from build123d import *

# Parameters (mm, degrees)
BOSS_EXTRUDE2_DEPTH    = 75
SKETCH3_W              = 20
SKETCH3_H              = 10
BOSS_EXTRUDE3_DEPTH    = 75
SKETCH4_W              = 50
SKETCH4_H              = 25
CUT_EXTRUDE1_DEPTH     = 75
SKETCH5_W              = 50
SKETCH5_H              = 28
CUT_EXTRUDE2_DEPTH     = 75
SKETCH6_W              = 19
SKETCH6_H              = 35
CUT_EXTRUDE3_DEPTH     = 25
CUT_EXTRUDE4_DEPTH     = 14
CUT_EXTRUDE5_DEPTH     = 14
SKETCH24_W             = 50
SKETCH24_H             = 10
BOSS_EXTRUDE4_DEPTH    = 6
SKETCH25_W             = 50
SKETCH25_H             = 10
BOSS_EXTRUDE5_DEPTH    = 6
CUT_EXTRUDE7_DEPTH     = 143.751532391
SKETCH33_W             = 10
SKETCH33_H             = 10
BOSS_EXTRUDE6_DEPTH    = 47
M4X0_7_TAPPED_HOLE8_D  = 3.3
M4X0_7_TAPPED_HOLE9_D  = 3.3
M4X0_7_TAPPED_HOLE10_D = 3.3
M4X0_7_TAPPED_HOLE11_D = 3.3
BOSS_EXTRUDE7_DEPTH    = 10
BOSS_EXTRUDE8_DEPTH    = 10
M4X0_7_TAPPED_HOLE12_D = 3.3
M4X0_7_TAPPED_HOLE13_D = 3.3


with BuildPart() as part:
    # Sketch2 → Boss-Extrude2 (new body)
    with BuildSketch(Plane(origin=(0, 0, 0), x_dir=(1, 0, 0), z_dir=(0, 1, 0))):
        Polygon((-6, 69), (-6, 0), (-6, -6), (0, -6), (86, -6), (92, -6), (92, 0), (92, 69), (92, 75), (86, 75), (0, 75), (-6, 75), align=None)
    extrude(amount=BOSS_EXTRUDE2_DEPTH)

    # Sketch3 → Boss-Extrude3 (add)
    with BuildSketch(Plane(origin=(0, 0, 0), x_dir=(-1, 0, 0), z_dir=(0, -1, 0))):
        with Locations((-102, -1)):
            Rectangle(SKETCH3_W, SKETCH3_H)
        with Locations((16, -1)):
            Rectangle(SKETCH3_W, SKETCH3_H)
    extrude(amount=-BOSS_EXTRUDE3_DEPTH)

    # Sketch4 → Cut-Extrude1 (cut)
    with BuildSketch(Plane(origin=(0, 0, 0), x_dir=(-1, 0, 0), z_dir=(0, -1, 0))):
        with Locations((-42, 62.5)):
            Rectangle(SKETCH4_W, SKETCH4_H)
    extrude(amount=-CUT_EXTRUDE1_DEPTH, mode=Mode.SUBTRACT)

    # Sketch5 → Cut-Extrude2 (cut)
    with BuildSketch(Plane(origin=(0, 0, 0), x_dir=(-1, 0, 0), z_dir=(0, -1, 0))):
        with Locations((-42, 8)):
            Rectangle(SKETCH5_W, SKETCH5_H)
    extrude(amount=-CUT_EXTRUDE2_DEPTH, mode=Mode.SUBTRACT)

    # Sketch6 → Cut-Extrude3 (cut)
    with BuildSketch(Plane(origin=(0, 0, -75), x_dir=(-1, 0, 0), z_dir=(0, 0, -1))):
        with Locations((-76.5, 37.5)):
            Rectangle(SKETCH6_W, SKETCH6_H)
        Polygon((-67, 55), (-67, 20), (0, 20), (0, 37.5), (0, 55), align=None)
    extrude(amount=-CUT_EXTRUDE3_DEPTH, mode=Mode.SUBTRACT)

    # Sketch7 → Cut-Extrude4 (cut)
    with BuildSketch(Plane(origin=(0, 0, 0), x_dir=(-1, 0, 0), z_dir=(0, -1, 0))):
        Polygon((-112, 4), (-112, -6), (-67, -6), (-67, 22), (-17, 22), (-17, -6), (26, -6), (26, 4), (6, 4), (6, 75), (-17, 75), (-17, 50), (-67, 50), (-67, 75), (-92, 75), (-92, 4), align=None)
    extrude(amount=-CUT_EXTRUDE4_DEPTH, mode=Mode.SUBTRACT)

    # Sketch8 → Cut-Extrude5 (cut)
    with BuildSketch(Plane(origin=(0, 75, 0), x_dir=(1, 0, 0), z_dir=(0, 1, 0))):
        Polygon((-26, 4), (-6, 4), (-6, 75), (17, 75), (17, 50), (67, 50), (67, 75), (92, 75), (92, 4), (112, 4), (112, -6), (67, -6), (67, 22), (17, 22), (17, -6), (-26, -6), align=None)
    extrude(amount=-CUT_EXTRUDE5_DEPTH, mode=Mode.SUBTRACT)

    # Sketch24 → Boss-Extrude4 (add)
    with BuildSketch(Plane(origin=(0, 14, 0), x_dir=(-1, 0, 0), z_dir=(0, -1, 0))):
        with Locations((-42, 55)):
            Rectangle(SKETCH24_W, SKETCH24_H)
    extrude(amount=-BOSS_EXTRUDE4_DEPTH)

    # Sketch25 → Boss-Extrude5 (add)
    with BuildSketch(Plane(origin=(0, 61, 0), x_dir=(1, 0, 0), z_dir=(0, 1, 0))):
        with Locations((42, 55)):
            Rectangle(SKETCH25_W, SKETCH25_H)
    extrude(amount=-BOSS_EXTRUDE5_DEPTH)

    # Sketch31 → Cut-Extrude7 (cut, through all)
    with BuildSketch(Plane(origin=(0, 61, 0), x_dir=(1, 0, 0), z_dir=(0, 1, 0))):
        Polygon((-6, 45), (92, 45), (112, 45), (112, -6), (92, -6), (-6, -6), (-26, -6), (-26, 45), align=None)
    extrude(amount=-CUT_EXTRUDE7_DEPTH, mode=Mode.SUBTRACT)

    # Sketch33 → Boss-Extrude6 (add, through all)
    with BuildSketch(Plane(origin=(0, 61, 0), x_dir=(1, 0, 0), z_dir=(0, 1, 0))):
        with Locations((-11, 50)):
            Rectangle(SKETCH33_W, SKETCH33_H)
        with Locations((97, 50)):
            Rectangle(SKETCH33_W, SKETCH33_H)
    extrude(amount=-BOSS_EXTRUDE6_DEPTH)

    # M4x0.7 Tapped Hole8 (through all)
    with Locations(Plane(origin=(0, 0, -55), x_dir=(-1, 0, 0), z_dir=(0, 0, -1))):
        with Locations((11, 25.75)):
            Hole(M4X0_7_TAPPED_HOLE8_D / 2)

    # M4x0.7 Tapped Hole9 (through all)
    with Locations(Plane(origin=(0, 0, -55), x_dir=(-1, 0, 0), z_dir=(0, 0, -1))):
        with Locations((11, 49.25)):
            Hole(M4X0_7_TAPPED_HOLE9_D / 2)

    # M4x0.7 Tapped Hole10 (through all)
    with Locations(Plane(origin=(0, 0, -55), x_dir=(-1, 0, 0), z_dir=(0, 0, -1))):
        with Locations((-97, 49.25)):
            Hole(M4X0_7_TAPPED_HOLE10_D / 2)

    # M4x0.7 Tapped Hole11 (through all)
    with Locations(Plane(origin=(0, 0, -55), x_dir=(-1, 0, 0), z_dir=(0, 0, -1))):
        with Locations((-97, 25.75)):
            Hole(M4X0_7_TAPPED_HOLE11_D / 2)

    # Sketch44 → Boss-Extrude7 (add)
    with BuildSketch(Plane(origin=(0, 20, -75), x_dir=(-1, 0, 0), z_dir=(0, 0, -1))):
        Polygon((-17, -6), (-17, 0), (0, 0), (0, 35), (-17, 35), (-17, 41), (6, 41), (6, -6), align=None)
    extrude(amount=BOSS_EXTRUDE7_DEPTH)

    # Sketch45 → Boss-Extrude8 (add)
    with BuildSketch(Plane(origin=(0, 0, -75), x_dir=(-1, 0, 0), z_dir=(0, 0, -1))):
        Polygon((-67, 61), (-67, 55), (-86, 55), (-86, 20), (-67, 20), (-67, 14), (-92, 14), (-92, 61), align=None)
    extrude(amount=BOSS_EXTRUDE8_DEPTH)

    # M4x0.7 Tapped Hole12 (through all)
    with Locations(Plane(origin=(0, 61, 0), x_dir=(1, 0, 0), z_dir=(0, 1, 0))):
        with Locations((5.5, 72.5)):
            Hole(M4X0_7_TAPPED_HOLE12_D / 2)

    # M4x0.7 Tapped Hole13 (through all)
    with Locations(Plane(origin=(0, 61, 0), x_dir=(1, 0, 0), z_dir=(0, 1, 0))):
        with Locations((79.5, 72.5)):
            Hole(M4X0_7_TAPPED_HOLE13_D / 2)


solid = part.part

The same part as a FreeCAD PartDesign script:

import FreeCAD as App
import Part
import Sketcher

V = App.Vector
Q = App.Units.Quantity


def add_polygon(sketch, points):
    """Adds a closed chain of lines whose ends are joined by coincident constraints."""
    first, n = sketch.GeometryCount, len(points)
    for a, b in zip(points, points[1:] + points[:1]):
        sketch.addGeometry(Part.LineSegment(App.Vector(*a, 0), App.Vector(*b, 0)), False)
    for i in range(n):
        sketch.addConstraint(Sketcher.Constraint("Coincident", first + i, 2, first + (i + 1) % n, 1))

doc = App.newDocument("Part")
body = doc.addObject("PartDesign::Body", "Body")

sketch1 = body.newObject("Sketcher::SketchObject", "Sketch")
sketch1.AttachmentSupport = (doc.getObject("XZ_Plane"), [""])
sketch1.MapMode = "FlatFace"
add_polygon(sketch1, [(-6, 6), (92, 6), (92, -75), (-6, -75)])
sketch1.addConstraint([
    Sketcher.Constraint("Horizontal", 0),
    Sketcher.Constraint("Vertical", 1),
    Sketcher.Constraint("Horizontal", 2),
    Sketcher.Constraint("Vertical", 3),
    Sketcher.Constraint("DistanceX", 0, 1, 0, 2, Q("98 mm")),
    Sketcher.Constraint("DistanceY", 1, 2, 1, 1, Q("81 mm")),
    Sketcher.Constraint("DistanceX", -1, 1, 0, 2, Q("92 mm")),
    Sketcher.Constraint("DistanceY", -1, 1, 0, 2, Q("6 mm")),
])
pad1 = body.newObject("PartDesign::Pad", "Pad")
pad1.Profile = sketch1
pad1.Length = 75
pad1.Reversed = True

sketch2 = body.newObject("Sketcher::SketchObject", "Sketch001")
sketch2.AttachmentSupport = (doc.getObject("XZ_Plane"), [""])
sketch2.MapMode = "FlatFace"
add_polygon(sketch2, [(112, -4), (112, 6), (92, 6), (92, -4)])
add_polygon(sketch2, [(-6, -4), (-6, 6), (-26, 6), (-26, -4)])
sketch2.addConstraint([
    Sketcher.Constraint("Vertical", 0),
    Sketcher.Constraint("Horizontal", 1),
    Sketcher.Constraint("Vertical", 2),
    Sketcher.Constraint("Horizontal", 3),
    Sketcher.Constraint("Vertical", 4),
    Sketcher.Constraint("Horizontal", 5),
    Sketcher.Constraint("Vertical", 6),
    Sketcher.Constraint("Horizontal", 7),
    Sketcher.Constraint("Horizontal", 1, 2, 4, 2),
    Sketcher.Constraint("Horizontal", 3, 2, 6, 2),
    Sketcher.Constraint("Equal", 3, 5),
    Sketcher.Constraint("DistanceX", 1, 2, 1, 1, Q("20 mm")),
    Sketcher.Constraint("DistanceY", 0, 1, 0, 2, Q("10 mm")),
    Sketcher.Constraint("DistanceX", -1, 1, 0, 2, Q("112 mm")),
    Sketcher.Constraint("DistanceY", -1, 1, 0, 2, Q("6 mm")),
    Sketcher.Constraint("DistanceX", 4, 2, -1, 1, Q("6 mm")),
])
pad2 = body.newObject("PartDesign::Pad", "Pad001")
pad2.Profile = sketch2
pad2.Length = 75
pad2.Reversed = True

sketch3 = body.newObject("Sketcher::SketchObject", "Sketch002")
sketch3.AttachmentSupport = (doc.getObject("XZ_Plane"), [""])
sketch3.MapMode = "FlatFace"
add_polygon(sketch3, [(67, -75), (67, -50), (17, -50), (17, -75)])
sketch3.addConstraint([
    Sketcher.Constraint("Vertical", 0),
    Sketcher.Constraint("Horizontal", 1),
    Sketcher.Constraint("Vertical", 2),
    Sketcher.Constraint("Horizontal", 3),
    Sketcher.Constraint("DistanceX", 1, 2, 1, 1, Q("50 mm")),
    Sketcher.Constraint("DistanceY", 0, 1, 0, 2, Q("25 mm")),
    Sketcher.Constraint("DistanceX", -1, 1, 0, 2, Q("67 mm")),
    Sketcher.Constraint("DistanceY", 0, 2, -1, 1, Q("50 mm")),
])
pocket1 = body.newObject("PartDesign::Pocket", "Pocket")
pocket1.Profile = sketch3
pocket1.Length = 75

sketch4 = body.newObject("Sketcher::SketchObject", "Sketch003")
sketch4.AttachmentSupport = (doc.getObject("XZ_Plane"), [""])
sketch4.MapMode = "FlatFace"
add_polygon(sketch4, [(67, -22), (67, 6), (17, 6), (17, -22)])
sketch4.addConstraint([
    Sketcher.Constraint("Vertical", 0),
    Sketcher.Constraint("Horizontal", 1),
    Sketcher.Constraint("Vertical", 2),
    Sketcher.Constraint("Horizontal", 3),
    Sketcher.Constraint("DistanceX", 1, 2, 1, 1, Q("50 mm")),
    Sketcher.Constraint("DistanceY", 0, 1, 0, 2, Q("28 mm")),
    Sketcher.Constraint("DistanceX", -1, 1, 0, 2, Q("67 mm")),
    Sketcher.Constraint("DistanceY", -1, 1, 0, 2, Q("6 mm")),
])
pocket2 = body.newObject("PartDesign::Pocket", "Pocket001")
pocket2.Profile = sketch4
pocket2.Length = 75

sketch5 = body.newObject("Sketcher::SketchObject", "Sketch004")
sketch5.AttachmentSupport = (doc.getObject("XY_Plane"), [""])
sketch5.MapMode = "FlatFace"
sketch5.AttachmentOffset = App.Placement(V(0, 0, -75), App.Rotation())
add_polygon(sketch5, [(86, 55), (86, 20), (0, 20), (0, 55)])
sketch5.addConstraint([
    Sketcher.Constraint("Vertical", 0),
    Sketcher.Constraint("Horizontal", 1),
    Sketcher.Constraint("Vertical", 2),
    Sketcher.Constraint("Horizontal", 3),
    Sketcher.Constraint("PointOnObject", 1, 2, -2),
    Sketcher.Constraint("DistanceX", 1, 2, 1, 1, Q("86 mm")),
    Sketcher.Constraint("DistanceY", 0, 2, 0, 1, Q("35 mm")),
    Sketcher.Constraint("DistanceY", -1, 1, 0, 2, Q("20 mm")),
])
pocket3 = body.newObject("PartDesign::Pocket", "Pocket002")
pocket3.Profile = sketch5
pocket3.Length = 25
pocket3.Reversed = True

sketch6 = body.newObject("Sketcher::SketchObject", "Sketch005")
sketch6.AttachmentSupport = (doc.getObject("XZ_Plane"), [""])
sketch6.MapMode = "FlatFace"
add_polygon(sketch6, [(112, -4), (112, 6), (67, 6), (67, -22), (17, -22), (17, 6), (-26, 6), (-26, -4), (-6, -4), (-6, -75), (17, -75), (17, -50), (67, -50), (67, -75), (92, -75), (92, -4)])
sketch6.addConstraint([
    Sketcher.Constraint("Vertical", 0),
    Sketcher.Constraint("Horizontal", 1),
    Sketcher.Constraint("Vertical", 2),
    Sketcher.Constraint("Horizontal", 3),
    Sketcher.Constraint("Vertical", 4),
    Sketcher.Constraint("Horizontal", 5),
    Sketcher.Constraint("Vertical", 6),
    Sketcher.Constraint("Horizontal", 7),
    Sketcher.Constraint("Vertical", 8),
    Sketcher.Constraint("Horizontal", 9),
    Sketcher.Constraint("Vertical", 10),
    Sketcher.Constraint("Horizontal", 11),
    Sketcher.Constraint("Vertical", 12),
    Sketcher.Constraint("Horizontal", 13),
    Sketcher.Constraint("Vertical", 14),
    Sketcher.Constraint("Horizontal", 15),
    Sketcher.Constraint("Horizontal", 1, 2, 4, 2),
    Sketcher.Constraint("Horizontal", 9, 2, 12, 2),
    Sketcher.Constraint("Horizontal", 7, 2, 14, 2),
    Sketcher.Constraint("Vertical", 4, 2, 9, 2),
    Sketcher.Constraint("Vertical", 2, 2, 11, 2),
    Sketcher.Constraint("Equal", 7, 15),
    Sketcher.Constraint("Equal", 13, 10),
    Sketcher.Constraint("DistanceX", 1, 2, 1, 1, Q("45 mm")),
    Sketcher.Constraint("DistanceX", 3, 2, 3, 1, Q("50 mm")),
    Sketcher.Constraint("DistanceX", 5, 2, 5, 1, Q("43 mm")),
    Sketcher.Constraint("DistanceX", 7, 1, 7, 2, Q("20 mm")),
    Sketcher.Constraint("DistanceY", 0, 1, 0, 2, Q("10 mm")),
    Sketcher.Constraint("DistanceY", 2, 2, 2, 1, Q("28 mm")),
    Sketcher.Constraint("DistanceY", 8, 2, 8, 1, Q("71 mm")),
    Sketcher.Constraint("DistanceX", -1, 1, 0, 2, Q("112 mm")),
    Sketcher.Constraint("DistanceY", -1, 1, 0, 2, Q("6 mm")),
])
pocket4 = body.newObject("PartDesign::Pocket", "Pocket003")
pocket4.Profile = sketch6
pocket4.Length = 14

sketch7 = body.newObject("Sketcher::SketchObject", "Sketch006")
sketch7.AttachmentSupport = (doc.getObject("XZ_Plane"), [""])
sketch7.MapMode = "FlatFace"
sketch7.AttachmentOffset = App.Placement(V(0, 0, -75), App.Rotation())
add_polygon(sketch7, [(-6, -4), (-26, -4), (-26, 6), (17, 6), (17, -22), (67, -22), (67, 6), (112, 6), (112, -4), (92, -4), (92, -75), (67, -75), (67, -50), (17, -50), (17, -75), (-6, -75)])
sketch7.addConstraint([
    Sketcher.Constraint("Horizontal", 0),
    Sketcher.Constraint("Vertical", 1),
    Sketcher.Constraint("Horizontal", 2),
    Sketcher.Constraint("Vertical", 3),
    Sketcher.Constraint("Horizontal", 4),
    Sketcher.Constraint("Vertical", 5),
    Sketcher.Constraint("Horizontal", 6),
    Sketcher.Constraint("Vertical", 7),
    Sketcher.Constraint("Horizontal", 8),
    Sketcher.Constraint("Vertical", 9),
    Sketcher.Constraint("Horizontal", 10),
    Sketcher.Constraint("Vertical", 11),
    Sketcher.Constraint("Horizontal", 12),
    Sketcher.Constraint("Vertical", 13),
    Sketcher.Constraint("Horizontal", 14),
    Sketcher.Constraint("Vertical", 15),
    Sketcher.Constraint("Horizontal", 2, 2, 5, 2),
    Sketcher.Constraint("Horizontal", 0, 2, 7, 2),
    Sketcher.Constraint("Horizontal", 10, 2, 13, 2),
    Sketcher.Constraint("Vertical", 5, 2, 10, 2),
    Sketcher.Constraint("Vertical", 3, 2, 12, 2),
    Sketcher.Constraint("Equal", 0, 8),
    Sketcher.Constraint("Equal", 10, 11),
    Sketcher.Constraint("DistanceX", 0, 2, 0, 1, Q("20 mm")),
    Sketcher.Constraint("DistanceX", 2, 1, 2, 2, Q("43 mm")),
    Sketcher.Constraint("DistanceX", 4, 1, 4, 2, Q("50 mm")),
    Sketcher.Constraint("DistanceX", 6, 1, 6, 2, Q("45 mm")),
    Sketcher.Constraint("DistanceY", 1, 1, 1, 2, Q("10 mm")),
    Sketcher.Constraint("DistanceY", 3, 2, 3, 1, Q("28 mm")),
    Sketcher.Constraint("DistanceY", 9, 2, 9, 1, Q("71 mm")),
    Sketcher.Constraint("DistanceX", 0, 2, -1, 1, Q("26 mm")),
    Sketcher.Constraint("DistanceY", 0, 2, -1, 1, Q("4 mm")),
])
pocket5 = body.newObject("PartDesign::Pocket", "Pocket004")
pocket5.Profile = sketch7
pocket5.Length = 14
pocket5.Reversed = True

sketch8 = body.newObject("Sketcher::SketchObject", "Sketch007")
sketch8.AttachmentSupport = (doc.getObject("XZ_Plane"), [""])
sketch8.MapMode = "FlatFace"
sketch8.AttachmentOffset = App.Placement(V(0, 0, -14), App.Rotation())
add_polygon(sketch8, [(67, -60), (67, -50), (17, -50), (17, -60)])
sketch8.addConstraint([
    Sketcher.Constraint("Vertical", 0),
    Sketcher.Constraint("Horizontal", 1),
    Sketcher.Constraint("Vertical", 2),
    Sketcher.Constraint("Horizontal", 3),
    Sketcher.Constraint("DistanceX", 1, 2, 1, 1, Q("50 mm")),
    Sketcher.Constraint("DistanceY", 0, 1, 0, 2, Q("10 mm")),
    Sketcher.Constraint("DistanceX", -1, 1, 0, 2, Q("67 mm")),
    Sketcher.Constraint("DistanceY", 0, 2, -1, 1, Q("50 mm")),
])
pad3 = body.newObject("PartDesign::Pad", "Pad002")
pad3.Profile = sketch8
pad3.Length = 6
pad3.Reversed = True

sketch9 = body.newObject("Sketcher::SketchObject", "Sketch008")
sketch9.AttachmentSupport = (doc.getObject("XZ_Plane"), [""])
sketch9.MapMode = "FlatFace"
sketch9.AttachmentOffset = App.Placement(V(0, 0, -61), App.Rotation())
add_polygon(sketch9, [(17, -60), (17, -50), (67, -50), (67, -60)])
sketch9.addConstraint([
    Sketcher.Constraint("Vertical", 0),
    Sketcher.Constraint("Horizontal", 1),
    Sketcher.Constraint("Vertical", 2),
    Sketcher.Constraint("Horizontal", 3),
    Sketcher.Constraint("DistanceX", 1, 1, 1, 2, Q("50 mm")),
    Sketcher.Constraint("DistanceY", 0, 1, 0, 2, Q("10 mm")),
    Sketcher.Constraint("DistanceX", -1, 1, 0, 2, Q("17 mm")),
    Sketcher.Constraint("DistanceY", 0, 2, -1, 1, Q("50 mm")),
])
pad4 = body.newObject("PartDesign::Pad", "Pad003")
pad4.Profile = sketch9
pad4.Length = 6

sketch10 = body.newObject("Sketcher::SketchObject", "Sketch009")
sketch10.AttachmentSupport = (doc.getObject("XZ_Plane"), [""])
sketch10.MapMode = "FlatFace"
sketch10.AttachmentOffset = App.Placement(V(0, 0, -61), App.Rotation())
add_polygon(sketch10, [(112, -45), (-26, -45), (-26, 6), (112, 6)])
sketch10.addConstraint([
    Sketcher.Constraint("Horizontal", 0),
    Sketcher.Constraint("Vertical", 1),
    Sketcher.Constraint("Horizontal", 2),
    Sketcher.Constraint("Vertical", 3),
    Sketcher.Constraint("DistanceX", 0, 2, 0, 1, Q("138 mm")),
    Sketcher.Constraint("DistanceY", 1, 1, 1, 2, Q("51 mm")),
    Sketcher.Constraint("DistanceX", 0, 2, -1, 1, Q("26 mm")),
    Sketcher.Constraint("DistanceY", 0, 2, -1, 1, Q("45 mm")),
])
pocket6 = body.newObject("PartDesign::Pocket", "Pocket005")
pocket6.Profile = sketch10
pocket6.Type = "ThroughAll"
pocket6.Reversed = True

sketch11 = body.newObject("Sketcher::SketchObject", "Sketch010")
sketch11.AttachmentSupport = (doc.getObject("XZ_Plane"), [""])
sketch11.MapMode = "FlatFace"
sketch11.AttachmentOffset = App.Placement(V(0, 0, -61), App.Rotation())
add_polygon(sketch11, [(-16, -55), (-16, -45), (-6, -45), (-6, -55)])
add_polygon(sketch11, [(92, -55), (92, -45), (102, -45), (102, -55)])
sketch11.addConstraint([
    Sketcher.Constraint("Vertical", 0),
    Sketcher.Constraint("Horizontal", 1),
    Sketcher.Constraint("Vertical", 2),
    Sketcher.Constraint("Horizontal", 3),
    Sketcher.Constraint("Vertical", 4),
    Sketcher.Constraint("Horizontal", 5),
    Sketcher.Constraint("Vertical", 6),
    Sketcher.Constraint("Horizontal", 7),
    Sketcher.Constraint("Horizontal", 1, 2, 4, 2),
    Sketcher.Constraint("Horizontal", 3, 2, 6, 2),
    Sketcher.Constraint("Equal", 3, 5),
    Sketcher.Constraint("Equal", 7, 0),
    Sketcher.Constraint("DistanceX", 1, 1, 1, 2, Q("10 mm")),
    Sketcher.Constraint("DistanceX", 0, 2, -1, 1, Q("16 mm")),
    Sketcher.Constraint("DistanceY", 0, 2, -1, 1, Q("45 mm")),
    Sketcher.Constraint("DistanceX", -1, 1, 4, 2, Q("92 mm")),
])
pad5 = body.newObject("PartDesign::Pad", "Pad004")
pad5.Profile = sketch11
pad5.Type = "UpToLast"

sketch12 = body.newObject("Sketcher::SketchObject", "Sketch011")
sketch12.AttachmentSupport = (doc.getObject("XY_Plane"), [""])
sketch12.MapMode = "FlatFace"
sketch12.AttachmentOffset = App.Placement(V(0, 0, -55), App.Rotation())
sketch12.addGeometry(Part.Circle(V(-11, 25.8, 0), V(0, 0, 1), 1.6), False)
sketch12.addConstraint([
    Sketcher.Constraint("Diameter", 0, Q("3.3 mm")),
    Sketcher.Constraint("DistanceX", 0, 3, -1, 1, Q("11 mm")),
    Sketcher.Constraint("DistanceY", -1, 1, 0, 3, Q("25.75 mm")),
])
doc.recompute()
hole = body.newObject("PartDesign::Hole", "Hole")
hole.Profile = sketch12
hole.ThreadType = "None"
hole.Diameter = 3.3
hole.DepthType = "ThroughAll"
hole.Reversed = True

sketch13 = body.newObject("Sketcher::SketchObject", "Sketch012")
sketch13.AttachmentSupport = (doc.getObject("XY_Plane"), [""])
sketch13.MapMode = "FlatFace"
sketch13.AttachmentOffset = App.Placement(V(0, 0, -55), App.Rotation())
sketch13.addGeometry(Part.Circle(V(-11, 49.2, 0), V(0, 0, 1), 1.6), False)
sketch13.addConstraint([
    Sketcher.Constraint("Diameter", 0, Q("3.3 mm")),
    Sketcher.Constraint("DistanceX", 0, 3, -1, 1, Q("11 mm")),
    Sketcher.Constraint("DistanceY", -1, 1, 0, 3, Q("49.25 mm")),
])
doc.recompute()
hole2 = body.newObject("PartDesign::Hole", "Hole001")
hole2.Profile = sketch13
hole2.ThreadType = "None"
hole2.Diameter = 3.3
hole2.DepthType = "ThroughAll"
hole2.Reversed = True

sketch14 = body.newObject("Sketcher::SketchObject", "Sketch013")
sketch14.AttachmentSupport = (doc.getObject("XY_Plane"), [""])
sketch14.MapMode = "FlatFace"
sketch14.AttachmentOffset = App.Placement(V(0, 0, -55), App.Rotation())
sketch14.addGeometry(Part.Circle(V(97, 49.2, 0), V(0, 0, 1), 1.6), False)
sketch14.addConstraint([
    Sketcher.Constraint("Diameter", 0, Q("3.3 mm")),
    Sketcher.Constraint("DistanceX", -1, 1, 0, 3, Q("97 mm")),
    Sketcher.Constraint("DistanceY", -1, 1, 0, 3, Q("49.25 mm")),
])
doc.recompute()
hole3 = body.newObject("PartDesign::Hole", "Hole002")
hole3.Profile = sketch14
hole3.ThreadType = "None"
hole3.Diameter = 3.3
hole3.DepthType = "ThroughAll"
hole3.Reversed = True

sketch15 = body.newObject("Sketcher::SketchObject", "Sketch014")
sketch15.AttachmentSupport = (doc.getObject("XY_Plane"), [""])
sketch15.MapMode = "FlatFace"
sketch15.AttachmentOffset = App.Placement(V(0, 0, -55), App.Rotation())
sketch15.addGeometry(Part.Circle(V(97, 25.8, 0), V(0, 0, 1), 1.6), False)
sketch15.addConstraint([
    Sketcher.Constraint("Diameter", 0, Q("3.3 mm")),
    Sketcher.Constraint("DistanceX", -1, 1, 0, 3, Q("97 mm")),
    Sketcher.Constraint("DistanceY", -1, 1, 0, 3, Q("25.75 mm")),
])
doc.recompute()
hole4 = body.newObject("PartDesign::Hole", "Hole003")
hole4.Profile = sketch15
hole4.ThreadType = "None"
hole4.Diameter = 3.3
hole4.DepthType = "ThroughAll"
hole4.Reversed = True

sketch16 = body.newObject("Sketcher::SketchObject", "Sketch015")
sketch16.AttachmentSupport = (doc.getObject("XY_Plane"), [""])
sketch16.MapMode = "FlatFace"
sketch16.AttachmentOffset = App.Placement(V(0, 0, -75), App.Rotation())
add_polygon(sketch16, [(17, 20), (17, 14), (-6, 14), (-6, 61), (17, 61), (17, 55), (0, 55), (0, 20)])
sketch16.addConstraint([
    Sketcher.Constraint("Vertical", 0),
    Sketcher.Constraint("Horizontal", 1),
    Sketcher.Constraint("Vertical", 2),
    Sketcher.Constraint("Horizontal", 3),
    Sketcher.Constraint("Vertical", 4),
    Sketcher.Constraint("Horizontal", 5),
    Sketcher.Constraint("Vertical", 6),
    Sketcher.Constraint("Horizontal", 7),
    Sketcher.Constraint("PointOnObject", 5, 2, -2),
    Sketcher.Constraint("Vertical", 0, 2, 3, 2),
    Sketcher.Constraint("Equal", 0, 4),
    Sketcher.Constraint("DistanceX", 1, 2, 1, 1, Q("23 mm")),
    Sketcher.Constraint("DistanceX", 5, 2, 5, 1, Q("17 mm")),
    Sketcher.Constraint("DistanceY", 0, 2, 0, 1, Q("6 mm")),
    Sketcher.Constraint("DistanceY", 2, 1, 2, 2, Q("47 mm")),
    Sketcher.Constraint("DistanceY", -1, 1, 0, 2, Q("14 mm")),
])
pad6 = body.newObject("PartDesign::Pad", "Pad005")
pad6.Profile = sketch16
pad6.Length = 10
pad6.Reversed = True

sketch17 = body.newObject("Sketcher::SketchObject", "Sketch016")
sketch17.AttachmentSupport = (doc.getObject("XY_Plane"), [""])
sketch17.MapMode = "FlatFace"
sketch17.AttachmentOffset = App.Placement(V(0, 0, -75), App.Rotation())
add_polygon(sketch17, [(67, 55), (67, 61), (92, 61), (92, 14), (67, 14), (67, 20), (86, 20), (86, 55)])
sketch17.addConstraint([
    Sketcher.Constraint("Vertical", 0),
    Sketcher.Constraint("Horizontal", 1),
    Sketcher.Constraint("Vertical", 2),
    Sketcher.Constraint("Horizontal", 3),
    Sketcher.Constraint("Vertical", 4),
    Sketcher.Constraint("Horizontal", 5),
    Sketcher.Constraint("Vertical", 6),
    Sketcher.Constraint("Horizontal", 7),
    Sketcher.Constraint("Vertical", 0, 2, 3, 2),
    Sketcher.Constraint("Equal", 0, 4),
    Sketcher.Constraint("DistanceX", 1, 1, 1, 2, Q("25 mm")),
    Sketcher.Constraint("DistanceX", 5, 1, 5, 2, Q("19 mm")),
    Sketcher.Constraint("DistanceY", 0, 1, 0, 2, Q("6 mm")),
    Sketcher.Constraint("DistanceY", 2, 2, 2, 1, Q("47 mm")),
    Sketcher.Constraint("DistanceX", -1, 1, 0, 2, Q("67 mm")),
    Sketcher.Constraint("DistanceY", -1, 1, 0, 2, Q("61 mm")),
])
pad7 = body.newObject("PartDesign::Pad", "Pad006")
pad7.Profile = sketch17
pad7.Length = 10
pad7.Reversed = True

sketch18 = body.newObject("Sketcher::SketchObject", "Sketch017")
sketch18.AttachmentSupport = (doc.getObject("XZ_Plane"), [""])
sketch18.MapMode = "FlatFace"
sketch18.AttachmentOffset = App.Placement(V(0, 0, -61), App.Rotation())
sketch18.addGeometry(Part.Circle(V(5.5, -72.5, 0), V(0, 0, 1), 1.6), False)
sketch18.addConstraint([
    Sketcher.Constraint("Diameter", 0, Q("3.3 mm")),
    Sketcher.Constraint("DistanceX", -1, 1, 0, 3, Q("5.5 mm")),
    Sketcher.Constraint("DistanceY", 0, 3, -1, 1, Q("72.5 mm")),
])
doc.recompute()
hole5 = body.newObject("PartDesign::Hole", "Hole004")
hole5.Profile = sketch18
hole5.ThreadType = "None"
hole5.Diameter = 3.3
hole5.DepthType = "ThroughAll"
hole5.Reversed = True

sketch19 = body.newObject("Sketcher::SketchObject", "Sketch018")
sketch19.AttachmentSupport = (doc.getObject("XZ_Plane"), [""])
sketch19.MapMode = "FlatFace"
sketch19.AttachmentOffset = App.Placement(V(0, 0, -61), App.Rotation())
sketch19.addGeometry(Part.Circle(V(79.5, -72.5, 0), V(0, 0, 1), 1.6), False)
sketch19.addConstraint([
    Sketcher.Constraint("Diameter", 0, Q("3.3 mm")),
    Sketcher.Constraint("DistanceX", -1, 1, 0, 3, Q("79.5 mm")),
    Sketcher.Constraint("DistanceY", 0, 3, -1, 1, Q("72.5 mm")),
])
doc.recompute()
hole6 = body.newObject("PartDesign::Hole", "Hole005")
hole6.Profile = sketch19
hole6.ThreadType = "None"
hole6.Diameter = 3.3
hole6.DepthType = "ThroughAll"
hole6.Reversed = True

doc.recompute()
